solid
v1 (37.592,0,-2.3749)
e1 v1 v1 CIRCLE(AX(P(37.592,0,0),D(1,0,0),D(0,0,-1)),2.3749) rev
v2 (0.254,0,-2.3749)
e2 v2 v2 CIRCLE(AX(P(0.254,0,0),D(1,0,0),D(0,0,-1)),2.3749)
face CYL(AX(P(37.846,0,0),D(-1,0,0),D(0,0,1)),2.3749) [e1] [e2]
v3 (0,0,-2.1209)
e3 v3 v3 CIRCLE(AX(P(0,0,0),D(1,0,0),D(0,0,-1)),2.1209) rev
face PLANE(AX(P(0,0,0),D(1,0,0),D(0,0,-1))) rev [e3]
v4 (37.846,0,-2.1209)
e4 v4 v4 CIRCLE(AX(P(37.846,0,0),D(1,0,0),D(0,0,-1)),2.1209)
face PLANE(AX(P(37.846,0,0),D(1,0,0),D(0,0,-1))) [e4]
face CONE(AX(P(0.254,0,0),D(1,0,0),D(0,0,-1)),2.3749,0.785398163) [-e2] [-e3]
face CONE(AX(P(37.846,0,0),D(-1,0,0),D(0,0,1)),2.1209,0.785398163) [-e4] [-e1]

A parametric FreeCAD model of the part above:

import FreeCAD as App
import Part
import Sketcher

V = App.Vector
Q = App.Units.Quantity


def edges_at(feature, points):
    """Names of the edges that pass closest to the given points."""
    edges = feature.Shape.Edges
    near = lambda p: min(range(len(edges)), key=lambda i: edges[i].distToShape(Part.Vertex(*p))[0])
    return sorted({f"Edge{near(p) + 1}" for p in points})

doc = App.newDocument("Part")
body = doc.addObject("PartDesign::Body", "Body")

# Sketch on YZ plane
sketch1 = body.newObject("Sketcher::SketchObject", "Sketch")
sketch1.AttachmentSupport = (doc.getObject("YZ_Plane"), [""])
sketch1.MapMode = "FlatFace"
sketch1.addGeometry(Part.Circle(V(0, 0, 0), V(0, 0, 1), 2.4), False)
sketch1.addConstraint([
    Sketcher.Constraint("Coincident", 0, 3, -1, 1),
    Sketcher.Constraint("Diameter", 0, Q("0.187 in")),
])
pad1 = body.newObject("PartDesign::Pad", "Pad")
pad1.Profile = sketch1
pad1.Length = Q("1.49 in")
doc.recompute()

chamfer = body.newObject("PartDesign::Chamfer", "Chamfer")
chamfer.Base = (pad1, edges_at(pad1, [(0, 0, 2.375), (37.846, 0, 2.375)]))
chamfer.Size = Q("0.01 in")

doc.recompute()
